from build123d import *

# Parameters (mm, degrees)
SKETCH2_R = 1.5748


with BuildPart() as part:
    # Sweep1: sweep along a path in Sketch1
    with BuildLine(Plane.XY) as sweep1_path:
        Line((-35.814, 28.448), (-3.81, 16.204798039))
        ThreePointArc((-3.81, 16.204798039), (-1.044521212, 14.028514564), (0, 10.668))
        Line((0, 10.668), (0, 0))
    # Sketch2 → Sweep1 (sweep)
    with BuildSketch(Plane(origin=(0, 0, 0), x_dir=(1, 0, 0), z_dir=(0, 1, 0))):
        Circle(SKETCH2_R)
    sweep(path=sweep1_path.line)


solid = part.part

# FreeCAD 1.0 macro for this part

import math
import FreeCAD as App
import Part
import Sketcher
from FreeCAD import Vector
Q = App.Units.Quantity

doc = App.newDocument("Part")
body = doc.addObject("PartDesign::Body", "Body")

# Sketch on XZ plane
sketch1 = body.newObject("Sketcher::SketchObject", "Sketch")
sketch1.AttachmentSupport = (doc.getObject("XZ_Plane"), [""])
sketch1.MapMode = "FlatFace"
sketch1.addGeometry(Part.Circle(Vector(0, 0, 0), Vector(0, 0, 1), 1.5748), False)
sketch1.addConstraint([
    Sketcher.Constraint("Coincident", 0, 3, -1, 1),
    Sketcher.Constraint("Diameter", 0, Q("0.124 in")),
])

# Sketch on XY plane
sketch2 = body.newObject("Sketcher::SketchObject", "Sketch001")
sketch2.AttachmentSupport = (doc.getObject("XY_Plane"), [""])
sketch2.MapMode = "FlatFace"
sketch2.addGeometry([
    Part.LineSegment(Vector(-35.814, 28.448, 0), Vector(-3.81, 16.204798, 0)),
    Part.ArcOfCircle(Part.Circle(Vector(-5.928115, 10.668, 0), Vector(0, 0, 1), 5.928115), math.radians(0), math.radians(69.065536)),
    Part.LineSegment(Vector(0, 10.668, 0), Vector(0, 0, 0)),
], False)
sketch2.addConstraint([
    Sketcher.Constraint("Tangent", 0, 2, 1, 2),
    Sketcher.Constraint("Tangent", 1, 1, 2, 1),
    Sketcher.Constraint("Vertical", 2),
    Sketcher.Constraint("Coincident", 2, 2, -1, 1),
    Sketcher.Constraint("DistanceY", 2, 2, 2, 1, Q("0.42 in")),
    Sketcher.Constraint("DistanceY", 1, 3, 0, 1, Q("0.7 in")),
    Sketcher.Constraint("DistanceX", 0, 1, -1, 1, Q("1.41 in")),
    Sketcher.Constraint("DistanceX", 0, 2, -1, 1, Q("0.15 in")),
])
doc.recompute()

additivepipe = body.newObject("PartDesign::AdditivePipe", "AdditivePipe")
additivepipe.Profile = sketch1
additivepipe.Spine = (sketch2, ["Edge1", "Edge2", "Edge3"])

doc.recompute()
